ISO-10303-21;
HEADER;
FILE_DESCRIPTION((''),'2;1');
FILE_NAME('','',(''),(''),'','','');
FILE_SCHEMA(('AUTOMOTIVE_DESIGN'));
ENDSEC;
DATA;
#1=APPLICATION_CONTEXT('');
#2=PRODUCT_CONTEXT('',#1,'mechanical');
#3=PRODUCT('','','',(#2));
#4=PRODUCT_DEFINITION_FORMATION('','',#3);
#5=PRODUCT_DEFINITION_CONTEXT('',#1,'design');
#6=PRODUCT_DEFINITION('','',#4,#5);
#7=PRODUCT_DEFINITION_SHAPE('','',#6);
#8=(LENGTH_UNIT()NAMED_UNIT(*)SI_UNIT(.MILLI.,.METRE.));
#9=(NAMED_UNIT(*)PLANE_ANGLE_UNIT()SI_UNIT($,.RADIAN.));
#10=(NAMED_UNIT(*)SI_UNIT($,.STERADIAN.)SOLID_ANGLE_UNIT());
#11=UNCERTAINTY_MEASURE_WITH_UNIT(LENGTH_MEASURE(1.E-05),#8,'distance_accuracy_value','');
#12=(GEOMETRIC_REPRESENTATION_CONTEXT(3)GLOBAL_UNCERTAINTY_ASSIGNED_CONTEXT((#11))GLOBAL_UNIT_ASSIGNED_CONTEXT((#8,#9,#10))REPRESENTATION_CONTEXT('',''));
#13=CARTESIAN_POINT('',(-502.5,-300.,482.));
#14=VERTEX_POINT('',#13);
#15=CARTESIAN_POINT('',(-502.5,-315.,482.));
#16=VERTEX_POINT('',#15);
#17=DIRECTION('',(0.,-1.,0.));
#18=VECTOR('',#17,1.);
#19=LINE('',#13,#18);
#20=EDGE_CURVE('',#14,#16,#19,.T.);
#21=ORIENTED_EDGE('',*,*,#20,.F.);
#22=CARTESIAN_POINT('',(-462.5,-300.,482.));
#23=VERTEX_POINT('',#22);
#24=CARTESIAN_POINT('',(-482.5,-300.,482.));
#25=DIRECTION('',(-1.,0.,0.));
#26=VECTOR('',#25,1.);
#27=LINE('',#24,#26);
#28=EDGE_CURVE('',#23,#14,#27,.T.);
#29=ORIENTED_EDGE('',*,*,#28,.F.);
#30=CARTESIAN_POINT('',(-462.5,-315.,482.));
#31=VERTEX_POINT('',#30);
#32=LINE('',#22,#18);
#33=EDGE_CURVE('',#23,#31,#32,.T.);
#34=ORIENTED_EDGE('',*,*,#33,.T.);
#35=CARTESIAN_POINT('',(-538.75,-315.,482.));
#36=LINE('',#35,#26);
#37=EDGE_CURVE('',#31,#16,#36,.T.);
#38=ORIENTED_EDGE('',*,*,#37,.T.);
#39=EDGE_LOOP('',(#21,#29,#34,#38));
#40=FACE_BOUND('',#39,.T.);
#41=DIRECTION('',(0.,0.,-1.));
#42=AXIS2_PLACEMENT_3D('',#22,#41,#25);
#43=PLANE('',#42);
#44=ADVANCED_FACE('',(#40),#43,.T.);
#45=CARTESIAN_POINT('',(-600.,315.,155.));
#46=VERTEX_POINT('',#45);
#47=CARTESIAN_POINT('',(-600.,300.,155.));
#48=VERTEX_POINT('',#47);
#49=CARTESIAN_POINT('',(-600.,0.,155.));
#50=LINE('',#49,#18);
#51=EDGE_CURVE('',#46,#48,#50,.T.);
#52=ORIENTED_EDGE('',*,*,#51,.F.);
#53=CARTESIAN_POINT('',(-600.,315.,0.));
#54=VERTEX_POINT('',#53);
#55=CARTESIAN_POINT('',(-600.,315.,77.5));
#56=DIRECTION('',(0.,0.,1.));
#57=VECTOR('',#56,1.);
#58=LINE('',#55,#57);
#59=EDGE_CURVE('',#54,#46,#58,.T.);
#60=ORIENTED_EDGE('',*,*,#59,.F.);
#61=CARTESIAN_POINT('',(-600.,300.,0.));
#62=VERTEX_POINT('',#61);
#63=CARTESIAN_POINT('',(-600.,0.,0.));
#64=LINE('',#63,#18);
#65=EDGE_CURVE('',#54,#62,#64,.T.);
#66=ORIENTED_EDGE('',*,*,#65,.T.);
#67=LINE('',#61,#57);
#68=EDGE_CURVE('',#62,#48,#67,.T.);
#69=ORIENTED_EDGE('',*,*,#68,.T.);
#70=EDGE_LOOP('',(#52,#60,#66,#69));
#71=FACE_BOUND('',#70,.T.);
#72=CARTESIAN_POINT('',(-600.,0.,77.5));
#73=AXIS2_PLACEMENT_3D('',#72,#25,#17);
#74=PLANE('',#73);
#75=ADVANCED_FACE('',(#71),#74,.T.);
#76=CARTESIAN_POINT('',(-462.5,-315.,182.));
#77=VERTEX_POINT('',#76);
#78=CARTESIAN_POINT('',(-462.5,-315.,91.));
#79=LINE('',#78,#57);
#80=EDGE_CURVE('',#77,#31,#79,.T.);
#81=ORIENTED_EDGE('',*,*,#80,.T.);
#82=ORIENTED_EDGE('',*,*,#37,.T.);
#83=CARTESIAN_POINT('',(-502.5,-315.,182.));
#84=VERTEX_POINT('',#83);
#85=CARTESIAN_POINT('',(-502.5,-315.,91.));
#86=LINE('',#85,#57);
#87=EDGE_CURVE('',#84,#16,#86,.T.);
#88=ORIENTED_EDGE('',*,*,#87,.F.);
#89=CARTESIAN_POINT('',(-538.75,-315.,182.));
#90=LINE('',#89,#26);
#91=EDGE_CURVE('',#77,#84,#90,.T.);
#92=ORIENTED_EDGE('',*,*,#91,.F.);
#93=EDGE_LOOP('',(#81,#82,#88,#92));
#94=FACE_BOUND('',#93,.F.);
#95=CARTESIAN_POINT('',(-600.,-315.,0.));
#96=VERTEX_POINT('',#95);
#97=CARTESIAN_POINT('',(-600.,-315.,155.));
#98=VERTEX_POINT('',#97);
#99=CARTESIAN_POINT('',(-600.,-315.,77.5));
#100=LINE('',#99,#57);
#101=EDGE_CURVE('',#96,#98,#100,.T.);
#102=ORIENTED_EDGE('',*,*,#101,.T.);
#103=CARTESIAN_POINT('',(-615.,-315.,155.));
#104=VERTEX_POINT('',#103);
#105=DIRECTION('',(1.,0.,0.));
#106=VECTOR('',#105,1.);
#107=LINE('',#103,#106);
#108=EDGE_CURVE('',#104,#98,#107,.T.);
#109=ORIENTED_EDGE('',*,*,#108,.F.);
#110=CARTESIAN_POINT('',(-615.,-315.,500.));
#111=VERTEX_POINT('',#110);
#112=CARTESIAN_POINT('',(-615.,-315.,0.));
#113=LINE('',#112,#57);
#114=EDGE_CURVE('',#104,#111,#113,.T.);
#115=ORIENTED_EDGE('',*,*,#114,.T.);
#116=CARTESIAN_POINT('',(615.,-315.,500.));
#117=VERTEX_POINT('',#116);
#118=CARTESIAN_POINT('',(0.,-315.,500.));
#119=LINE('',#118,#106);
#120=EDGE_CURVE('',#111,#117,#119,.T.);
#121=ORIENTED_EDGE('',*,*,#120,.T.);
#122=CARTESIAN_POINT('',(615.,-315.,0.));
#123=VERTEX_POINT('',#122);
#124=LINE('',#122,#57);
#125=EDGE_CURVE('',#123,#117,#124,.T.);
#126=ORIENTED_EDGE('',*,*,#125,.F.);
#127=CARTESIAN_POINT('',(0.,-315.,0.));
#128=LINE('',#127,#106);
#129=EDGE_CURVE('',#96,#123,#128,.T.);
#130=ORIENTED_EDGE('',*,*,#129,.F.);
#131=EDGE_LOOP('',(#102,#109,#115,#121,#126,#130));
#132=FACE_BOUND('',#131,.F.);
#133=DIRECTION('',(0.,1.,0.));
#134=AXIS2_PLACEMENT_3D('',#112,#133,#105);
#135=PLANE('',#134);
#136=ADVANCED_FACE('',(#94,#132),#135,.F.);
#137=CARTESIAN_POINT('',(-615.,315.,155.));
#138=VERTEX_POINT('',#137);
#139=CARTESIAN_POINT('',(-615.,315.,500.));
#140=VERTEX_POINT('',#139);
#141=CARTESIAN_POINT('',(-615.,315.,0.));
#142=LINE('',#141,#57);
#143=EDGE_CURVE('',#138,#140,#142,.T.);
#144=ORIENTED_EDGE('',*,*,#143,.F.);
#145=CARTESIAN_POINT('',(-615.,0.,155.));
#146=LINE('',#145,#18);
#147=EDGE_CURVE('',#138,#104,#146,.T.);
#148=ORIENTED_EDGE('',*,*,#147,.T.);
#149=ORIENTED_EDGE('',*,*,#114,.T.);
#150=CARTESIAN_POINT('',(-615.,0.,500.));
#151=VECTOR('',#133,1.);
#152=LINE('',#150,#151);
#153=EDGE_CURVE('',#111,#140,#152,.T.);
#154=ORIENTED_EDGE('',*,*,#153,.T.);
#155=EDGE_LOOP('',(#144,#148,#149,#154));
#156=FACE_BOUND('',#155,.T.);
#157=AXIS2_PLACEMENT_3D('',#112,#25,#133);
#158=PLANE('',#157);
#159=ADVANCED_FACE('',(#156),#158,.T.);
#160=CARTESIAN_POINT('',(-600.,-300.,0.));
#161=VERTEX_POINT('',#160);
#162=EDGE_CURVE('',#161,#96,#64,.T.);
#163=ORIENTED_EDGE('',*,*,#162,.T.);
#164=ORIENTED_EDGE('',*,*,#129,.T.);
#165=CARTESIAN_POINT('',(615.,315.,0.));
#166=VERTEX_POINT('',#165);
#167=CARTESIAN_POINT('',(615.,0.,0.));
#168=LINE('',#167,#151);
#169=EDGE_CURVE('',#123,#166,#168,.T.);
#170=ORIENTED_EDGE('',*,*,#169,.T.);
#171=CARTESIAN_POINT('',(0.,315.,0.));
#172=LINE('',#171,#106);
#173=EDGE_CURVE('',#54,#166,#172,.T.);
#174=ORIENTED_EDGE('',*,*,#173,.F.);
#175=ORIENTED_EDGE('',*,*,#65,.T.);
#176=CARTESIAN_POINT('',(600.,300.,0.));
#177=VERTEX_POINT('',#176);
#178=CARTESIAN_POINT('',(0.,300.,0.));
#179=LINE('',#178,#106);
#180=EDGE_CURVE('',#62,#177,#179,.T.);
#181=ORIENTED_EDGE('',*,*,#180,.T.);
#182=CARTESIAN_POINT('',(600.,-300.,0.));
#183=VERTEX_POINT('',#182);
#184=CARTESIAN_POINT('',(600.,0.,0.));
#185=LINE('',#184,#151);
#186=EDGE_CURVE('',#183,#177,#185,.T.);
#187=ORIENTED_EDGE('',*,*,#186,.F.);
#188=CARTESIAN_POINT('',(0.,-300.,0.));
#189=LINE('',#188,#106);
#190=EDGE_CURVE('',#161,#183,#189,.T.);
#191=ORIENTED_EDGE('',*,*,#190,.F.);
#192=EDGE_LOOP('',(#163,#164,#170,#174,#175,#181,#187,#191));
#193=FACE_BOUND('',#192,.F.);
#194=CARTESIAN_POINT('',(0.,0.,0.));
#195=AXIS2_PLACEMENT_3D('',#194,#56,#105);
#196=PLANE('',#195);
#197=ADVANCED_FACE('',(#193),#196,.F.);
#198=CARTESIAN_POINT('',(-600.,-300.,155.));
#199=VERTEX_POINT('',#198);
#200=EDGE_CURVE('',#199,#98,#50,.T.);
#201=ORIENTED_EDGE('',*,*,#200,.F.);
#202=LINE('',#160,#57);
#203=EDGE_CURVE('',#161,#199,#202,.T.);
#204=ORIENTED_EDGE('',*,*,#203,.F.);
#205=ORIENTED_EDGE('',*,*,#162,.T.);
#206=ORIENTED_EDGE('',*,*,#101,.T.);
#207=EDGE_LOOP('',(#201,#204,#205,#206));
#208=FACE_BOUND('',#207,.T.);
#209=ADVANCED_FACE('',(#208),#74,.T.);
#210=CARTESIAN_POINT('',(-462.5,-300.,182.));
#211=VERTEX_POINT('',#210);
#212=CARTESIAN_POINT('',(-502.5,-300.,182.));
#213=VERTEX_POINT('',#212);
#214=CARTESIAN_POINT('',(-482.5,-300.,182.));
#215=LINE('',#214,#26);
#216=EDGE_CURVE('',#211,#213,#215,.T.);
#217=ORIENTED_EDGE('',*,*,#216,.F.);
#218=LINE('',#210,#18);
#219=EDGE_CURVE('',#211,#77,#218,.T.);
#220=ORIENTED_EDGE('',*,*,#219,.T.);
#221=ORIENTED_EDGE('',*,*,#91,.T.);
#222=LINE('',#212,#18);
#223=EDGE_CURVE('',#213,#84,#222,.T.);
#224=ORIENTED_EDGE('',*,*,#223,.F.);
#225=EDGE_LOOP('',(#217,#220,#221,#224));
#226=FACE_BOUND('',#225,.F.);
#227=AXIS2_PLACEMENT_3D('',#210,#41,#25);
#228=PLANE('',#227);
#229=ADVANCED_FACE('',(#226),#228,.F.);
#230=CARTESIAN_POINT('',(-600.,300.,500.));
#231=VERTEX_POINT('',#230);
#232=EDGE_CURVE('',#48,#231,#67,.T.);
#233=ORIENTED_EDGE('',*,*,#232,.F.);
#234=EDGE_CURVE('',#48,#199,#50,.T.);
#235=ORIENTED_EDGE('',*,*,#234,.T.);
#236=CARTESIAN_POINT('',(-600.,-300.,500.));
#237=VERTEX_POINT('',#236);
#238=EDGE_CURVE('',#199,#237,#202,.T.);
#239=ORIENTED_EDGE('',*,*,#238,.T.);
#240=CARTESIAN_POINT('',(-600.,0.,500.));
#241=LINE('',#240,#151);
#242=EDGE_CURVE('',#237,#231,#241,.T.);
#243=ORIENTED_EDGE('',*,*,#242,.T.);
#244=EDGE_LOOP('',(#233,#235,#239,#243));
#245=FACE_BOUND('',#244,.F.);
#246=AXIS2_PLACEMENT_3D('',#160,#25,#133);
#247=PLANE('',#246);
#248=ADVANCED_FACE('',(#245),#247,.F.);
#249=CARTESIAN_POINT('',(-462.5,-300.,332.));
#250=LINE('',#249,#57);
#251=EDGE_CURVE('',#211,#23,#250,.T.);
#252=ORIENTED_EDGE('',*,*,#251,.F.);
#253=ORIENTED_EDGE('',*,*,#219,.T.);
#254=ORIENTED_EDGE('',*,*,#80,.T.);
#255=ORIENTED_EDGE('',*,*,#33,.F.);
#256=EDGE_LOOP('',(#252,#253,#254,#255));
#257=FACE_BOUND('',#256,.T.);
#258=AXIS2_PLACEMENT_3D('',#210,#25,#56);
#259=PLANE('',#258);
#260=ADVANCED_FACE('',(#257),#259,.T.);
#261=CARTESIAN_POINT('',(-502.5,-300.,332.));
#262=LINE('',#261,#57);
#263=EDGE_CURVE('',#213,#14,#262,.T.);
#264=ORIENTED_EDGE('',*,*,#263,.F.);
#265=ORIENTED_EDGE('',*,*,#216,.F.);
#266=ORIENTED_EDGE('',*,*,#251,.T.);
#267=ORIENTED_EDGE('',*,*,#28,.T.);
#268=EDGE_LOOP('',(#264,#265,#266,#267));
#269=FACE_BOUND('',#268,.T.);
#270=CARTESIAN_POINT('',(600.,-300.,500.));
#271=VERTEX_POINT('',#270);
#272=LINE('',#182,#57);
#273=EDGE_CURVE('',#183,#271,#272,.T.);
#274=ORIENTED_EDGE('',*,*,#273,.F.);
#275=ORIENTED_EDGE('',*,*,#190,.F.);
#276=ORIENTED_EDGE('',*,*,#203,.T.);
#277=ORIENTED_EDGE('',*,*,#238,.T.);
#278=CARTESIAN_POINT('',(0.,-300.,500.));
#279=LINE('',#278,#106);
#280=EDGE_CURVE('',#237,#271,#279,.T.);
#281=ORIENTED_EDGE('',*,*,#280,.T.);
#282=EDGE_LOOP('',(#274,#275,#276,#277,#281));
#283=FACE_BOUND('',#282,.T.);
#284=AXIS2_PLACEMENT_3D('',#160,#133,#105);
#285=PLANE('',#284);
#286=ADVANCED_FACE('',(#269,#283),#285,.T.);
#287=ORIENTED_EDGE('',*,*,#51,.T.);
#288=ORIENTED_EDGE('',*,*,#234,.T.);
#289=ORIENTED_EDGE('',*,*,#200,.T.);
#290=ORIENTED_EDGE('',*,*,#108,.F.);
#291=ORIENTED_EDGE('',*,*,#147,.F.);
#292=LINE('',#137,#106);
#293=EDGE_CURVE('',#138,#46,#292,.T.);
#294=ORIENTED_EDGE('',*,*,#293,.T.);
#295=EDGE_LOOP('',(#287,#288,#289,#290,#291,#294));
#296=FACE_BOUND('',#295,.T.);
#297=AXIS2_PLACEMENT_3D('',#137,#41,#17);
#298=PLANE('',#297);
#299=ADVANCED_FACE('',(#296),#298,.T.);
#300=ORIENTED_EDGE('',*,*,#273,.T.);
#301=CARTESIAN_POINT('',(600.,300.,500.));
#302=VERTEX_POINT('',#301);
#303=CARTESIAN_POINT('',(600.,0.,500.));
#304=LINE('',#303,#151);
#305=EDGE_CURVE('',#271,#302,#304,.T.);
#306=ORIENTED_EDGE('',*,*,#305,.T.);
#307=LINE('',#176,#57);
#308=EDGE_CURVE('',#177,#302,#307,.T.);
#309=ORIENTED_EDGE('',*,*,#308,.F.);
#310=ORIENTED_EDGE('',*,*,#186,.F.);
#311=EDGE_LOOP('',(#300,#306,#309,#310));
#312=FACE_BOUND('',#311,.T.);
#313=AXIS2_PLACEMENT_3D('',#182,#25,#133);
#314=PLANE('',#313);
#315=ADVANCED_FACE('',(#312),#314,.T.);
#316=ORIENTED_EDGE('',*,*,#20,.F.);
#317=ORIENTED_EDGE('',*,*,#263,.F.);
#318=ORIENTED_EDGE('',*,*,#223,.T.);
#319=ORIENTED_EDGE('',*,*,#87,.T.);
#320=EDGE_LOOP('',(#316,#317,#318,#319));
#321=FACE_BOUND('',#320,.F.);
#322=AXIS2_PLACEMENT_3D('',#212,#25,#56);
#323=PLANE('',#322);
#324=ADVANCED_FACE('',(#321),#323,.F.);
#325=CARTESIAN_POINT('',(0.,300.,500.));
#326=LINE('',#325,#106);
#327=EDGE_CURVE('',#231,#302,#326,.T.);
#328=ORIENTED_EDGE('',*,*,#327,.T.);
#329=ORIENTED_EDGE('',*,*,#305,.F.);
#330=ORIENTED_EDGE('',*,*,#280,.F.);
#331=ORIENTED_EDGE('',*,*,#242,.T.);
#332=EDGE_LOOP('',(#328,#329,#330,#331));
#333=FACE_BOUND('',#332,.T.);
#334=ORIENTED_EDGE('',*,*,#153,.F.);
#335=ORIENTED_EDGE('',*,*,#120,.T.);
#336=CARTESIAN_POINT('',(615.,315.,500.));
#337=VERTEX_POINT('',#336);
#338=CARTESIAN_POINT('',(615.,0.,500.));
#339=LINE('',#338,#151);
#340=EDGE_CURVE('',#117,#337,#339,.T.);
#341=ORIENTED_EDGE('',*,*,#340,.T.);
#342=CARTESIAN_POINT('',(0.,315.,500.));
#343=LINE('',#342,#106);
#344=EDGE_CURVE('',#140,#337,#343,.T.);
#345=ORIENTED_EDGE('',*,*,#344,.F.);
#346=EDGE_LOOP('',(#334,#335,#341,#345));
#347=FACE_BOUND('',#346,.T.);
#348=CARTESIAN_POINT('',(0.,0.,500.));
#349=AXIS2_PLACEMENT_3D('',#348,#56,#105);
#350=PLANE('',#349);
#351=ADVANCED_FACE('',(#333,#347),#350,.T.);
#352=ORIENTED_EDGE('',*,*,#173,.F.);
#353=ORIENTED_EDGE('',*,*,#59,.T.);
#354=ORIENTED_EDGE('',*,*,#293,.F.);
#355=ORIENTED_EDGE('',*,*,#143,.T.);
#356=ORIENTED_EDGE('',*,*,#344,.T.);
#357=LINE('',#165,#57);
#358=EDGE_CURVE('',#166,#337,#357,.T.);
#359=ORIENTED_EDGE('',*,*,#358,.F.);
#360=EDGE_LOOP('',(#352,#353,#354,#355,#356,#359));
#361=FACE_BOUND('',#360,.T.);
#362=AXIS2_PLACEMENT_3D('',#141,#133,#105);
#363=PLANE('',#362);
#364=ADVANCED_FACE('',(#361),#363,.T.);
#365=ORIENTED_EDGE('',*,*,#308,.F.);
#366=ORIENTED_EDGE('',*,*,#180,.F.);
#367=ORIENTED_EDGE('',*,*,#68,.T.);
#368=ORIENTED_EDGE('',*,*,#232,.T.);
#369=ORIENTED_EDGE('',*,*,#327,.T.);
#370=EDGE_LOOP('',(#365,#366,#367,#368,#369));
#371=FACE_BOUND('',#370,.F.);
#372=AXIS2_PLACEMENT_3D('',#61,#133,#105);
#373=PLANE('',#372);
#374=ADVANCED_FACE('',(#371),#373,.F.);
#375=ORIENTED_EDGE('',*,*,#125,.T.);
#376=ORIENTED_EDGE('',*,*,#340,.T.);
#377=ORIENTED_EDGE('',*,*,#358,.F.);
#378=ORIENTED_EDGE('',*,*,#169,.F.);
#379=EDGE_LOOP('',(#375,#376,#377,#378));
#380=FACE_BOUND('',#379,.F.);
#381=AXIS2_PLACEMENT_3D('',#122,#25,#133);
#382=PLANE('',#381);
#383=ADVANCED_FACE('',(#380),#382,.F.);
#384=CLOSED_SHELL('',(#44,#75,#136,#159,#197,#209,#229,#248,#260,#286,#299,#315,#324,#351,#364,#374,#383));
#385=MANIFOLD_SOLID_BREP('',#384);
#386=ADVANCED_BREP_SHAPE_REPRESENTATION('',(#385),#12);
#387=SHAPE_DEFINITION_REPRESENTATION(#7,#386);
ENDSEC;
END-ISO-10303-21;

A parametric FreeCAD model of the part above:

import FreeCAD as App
import Part
import Sketcher
from FreeCAD import Vector


def add_polygon(sketch, points):
    """Adds a closed chain of lines whose ends are joined by coincident constraints."""
    first, n = sketch.GeometryCount, len(points)
    for a, b in zip(points, points[1:] + points[:1]):
        sketch.addGeometry(Part.LineSegment(App.Vector(*a, 0), App.Vector(*b, 0)), False)
    for i in range(n):
        sketch.addConstraint(Sketcher.Constraint("Coincident", first + i, 2, first + (i + 1) % n, 1))

doc = App.newDocument("Part")
body = doc.addObject("PartDesign::Body", "Body")

# Sketch on XY plane
sketch1 = doc.addObject("Sketcher::SketchObject", "Sketch")
body.addObject(sketch1)
sketch1.AttachmentSupport = (doc.XY_Plane, [""])
sketch1.MapMode = "FlatFace"
add_polygon(sketch1, [(-615, 315), (-615, -315), (615, -315), (615, 315)])  # lines 0-3
add_polygon(sketch1, [(600, -300), (-600, -300), (-600, 300), (600, 300)])  # lines 4-7
sketch1.addConstraint([
    Sketcher.Constraint("Vertical", 0),
    Sketcher.Constraint("Horizontal", 1),
    Sketcher.Constraint("Vertical", 2),
    Sketcher.Constraint("Horizontal", 3),
    Sketcher.Constraint("Horizontal", 4),
    Sketcher.Constraint("Vertical", 5),
    Sketcher.Constraint("Horizontal", 6),
    Sketcher.Constraint("Vertical", 7),
    Sketcher.Constraint("Symmetric", 0, 2, 2, 2, -1, 1),
    Sketcher.Constraint("Symmetric", 4, 2, 6, 2, -1, 1),
    Sketcher.Constraint("DistanceX", 1, 1, 1, 2, 1230.0),
    Sketcher.Constraint("DistanceX", 4, 2, 4, 1, 1200.0),
    Sketcher.Constraint("DistanceY", 0, 2, 0, 1, 630.0),
    Sketcher.Constraint("DistanceY", 5, 1, 5, 2, 600.0),
])
pad1 = doc.addObject("PartDesign::Pad", "Pad")
body.addObject(pad1)
pad1.Profile = sketch1
pad1.Length = 500

# Sketch on XZ plane
sketch2 = doc.addObject("Sketcher::SketchObject", "Sketch001")
body.addObject(sketch2)
sketch2.AttachmentSupport = (doc.XZ_Plane, [""])
sketch2.MapMode = "FlatFace"
sketch2.AttachmentOffset = App.Placement(Vector(0, 0, 300), App.Rotation())
add_polygon(sketch2, [(-462, 482), (-462, 182), (-502, 182), (-502, 482)])  # lines 0-3
sketch2.addConstraint([
    Sketcher.Constraint("Vertical", 0),
    Sketcher.Constraint("Horizontal", 1),
    Sketcher.Constraint("Vertical", 2),
    Sketcher.Constraint("Horizontal", 3),
    Sketcher.Constraint("DistanceX", 1, 2, 1, 1, 40.0),
    Sketcher.Constraint("DistanceY", 0, 2, 0, 1, 300.0),
    Sketcher.Constraint("DistanceY", -1, 1, 0, 2, 182.0),
    Sketcher.Constraint("DistanceX", 0, 2, -1, 1, 462.5),
])
pocket1 = doc.addObject("PartDesign::Pocket", "Pocket")
body.addObject(pocket1)
pocket1.Profile = sketch2
pocket1.Length = 25
pocket1.Reversed = True

# Sketch on YZ plane
sketch3 = doc.addObject("Sketcher::SketchObject", "Sketch002")
body.addObject(sketch3)
sketch3.AttachmentSupport = (doc.YZ_Plane, [""])
sketch3.MapMode = "FlatFace"
sketch3.AttachmentOffset = App.Placement(Vector(0, 0, -615), App.Rotation())
add_polygon(sketch3, [(315, 155), (315, 0), (-315, 0), (-315, 155)])  # lines 0-3
sketch3.addConstraint([
    Sketcher.Constraint("Vertical", 0),
    Sketcher.Constraint("Horizontal", 1),
    Sketcher.Constraint("Vertical", 2),
    Sketcher.Constraint("Horizontal", 3),
    Sketcher.Constraint("Symmetric", 0, 2, 1, 2, -1, 1),
    Sketcher.Constraint("DistanceX", 1, 2, 1, 1, 630.0),
    Sketcher.Constraint("DistanceY", 0, 2, 0, 1, 155.0),
])
pocket2 = doc.addObject("PartDesign::Pocket", "Pocket001")
body.addObject(pocket2)
pocket2.Profile = sketch3
pocket2.Length = 15
pocket2.Reversed = True

doc.recompute()
